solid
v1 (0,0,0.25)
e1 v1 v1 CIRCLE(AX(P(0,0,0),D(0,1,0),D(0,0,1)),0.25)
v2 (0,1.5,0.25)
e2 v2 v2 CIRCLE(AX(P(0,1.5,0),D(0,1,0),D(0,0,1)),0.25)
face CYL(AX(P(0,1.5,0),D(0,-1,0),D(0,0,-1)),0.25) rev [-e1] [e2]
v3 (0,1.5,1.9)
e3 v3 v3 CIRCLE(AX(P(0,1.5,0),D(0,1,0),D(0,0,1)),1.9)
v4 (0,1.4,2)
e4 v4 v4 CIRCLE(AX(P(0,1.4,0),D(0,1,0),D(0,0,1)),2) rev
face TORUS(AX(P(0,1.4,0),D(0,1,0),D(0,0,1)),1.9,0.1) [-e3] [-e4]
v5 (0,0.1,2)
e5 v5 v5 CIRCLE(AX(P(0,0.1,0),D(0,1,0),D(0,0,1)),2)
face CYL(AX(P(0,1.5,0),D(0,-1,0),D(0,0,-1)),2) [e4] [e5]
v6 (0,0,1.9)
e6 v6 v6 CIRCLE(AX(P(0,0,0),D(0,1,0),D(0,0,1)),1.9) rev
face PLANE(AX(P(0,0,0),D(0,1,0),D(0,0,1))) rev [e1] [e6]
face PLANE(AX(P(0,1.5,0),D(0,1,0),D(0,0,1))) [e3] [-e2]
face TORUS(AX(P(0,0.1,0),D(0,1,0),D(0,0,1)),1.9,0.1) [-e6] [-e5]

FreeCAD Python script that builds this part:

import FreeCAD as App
import Part
import Sketcher
Q = App.Units.Quantity


def edges_at(feature, points):
    """Names of the edges that pass closest to the given points."""
    edges = feature.Shape.Edges
    near = lambda p: min(range(len(edges)), key=lambda i: edges[i].distToShape(Part.Vertex(*p))[0])
    return sorted({f"Edge{near(p) + 1}" for p in points})

doc = App.newDocument("Part")
params = doc.addObject("Spreadsheet::Sheet", "Params")
for row, (alias, value) in enumerate([
    ("sketch1_diameter", "4 mm"),
    ("sketch1_diameter2", "0.5 mm"),
    ("pad1_length", "1.5 mm"),
    ("fillet_radius", "0.1 mm"),
], start=1):
    params.set(f"A{row}", alias)
    params.set(f"B{row}", "=" + value)
    params.setAlias(f"B{row}", alias)

body = doc.addObject("PartDesign::Body", "Body")

sketch1 = body.newObject("Sketcher::SketchObject", "Sketch")
sketch1.AttachmentSupport = (doc.getObject("XZ_Plane"), [""])
sketch1.MapMode = "FlatFace"
sketch1.addGeometry(Part.Circle(App.Vector(0, 0, 0), App.Vector(0, 0, 1), 2), False)
sketch1.addGeometry(Part.Circle(App.Vector(0, 0, 0), App.Vector(0, 0, 1), 0.25), False)
sketch1.addConstraint(Sketcher.Constraint("Coincident", 0, 3, -1, 1))
sketch1.addConstraint(Sketcher.Constraint("Coincident", 1, 3, -1, 1))
sketch1.addConstraint(Sketcher.Constraint("Diameter", 0, Q("4 mm")))
sketch1.addConstraint(Sketcher.Constraint("Diameter", 1, Q("0.5 mm")))
sketch1.setExpression("Constraints[2]", "Params.sketch1_diameter")
sketch1.setExpression("Constraints[3]", "Params.sketch1_diameter2")
pad1 = body.newObject("PartDesign::Pad", "Pad")
pad1.Profile = sketch1
pad1.setExpression("Length", "Params.pad1_length")
pad1.Reversed = True
doc.recompute()

fillet = body.newObject("PartDesign::Fillet", "Fillet")
fillet.Base = (pad1, edges_at(pad1, [(-2, 0, 0), (-2, 1.5, 0)]))
fillet.setExpression("Radius", "Params.fillet_radius")

doc.recompute()
